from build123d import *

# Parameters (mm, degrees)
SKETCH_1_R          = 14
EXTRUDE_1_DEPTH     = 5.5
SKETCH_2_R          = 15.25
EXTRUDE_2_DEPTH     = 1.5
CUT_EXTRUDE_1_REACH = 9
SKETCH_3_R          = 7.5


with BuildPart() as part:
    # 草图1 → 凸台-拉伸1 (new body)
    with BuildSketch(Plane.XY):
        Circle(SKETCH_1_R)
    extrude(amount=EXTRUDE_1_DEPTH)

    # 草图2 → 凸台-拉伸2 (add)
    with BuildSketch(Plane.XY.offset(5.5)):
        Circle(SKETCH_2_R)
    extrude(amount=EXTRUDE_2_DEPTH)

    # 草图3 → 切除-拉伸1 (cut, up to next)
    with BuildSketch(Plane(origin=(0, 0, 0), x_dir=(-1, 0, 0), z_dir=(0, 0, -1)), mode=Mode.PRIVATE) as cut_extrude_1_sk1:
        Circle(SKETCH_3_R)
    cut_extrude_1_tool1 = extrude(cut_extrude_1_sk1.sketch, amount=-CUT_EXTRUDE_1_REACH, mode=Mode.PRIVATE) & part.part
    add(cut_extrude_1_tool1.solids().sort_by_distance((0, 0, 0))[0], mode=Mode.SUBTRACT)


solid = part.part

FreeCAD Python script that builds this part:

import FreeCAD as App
import Part
import Sketcher
Q = App.Units.Quantity

doc = App.newDocument("Part")
body = doc.addObject("PartDesign::Body", "Body")

sketch1 = body.newObject("Sketcher::SketchObject", "Sketch")
sketch1.AttachmentSupport = (doc.getObject("XY_Plane"), [""])
sketch1.MapMode = "FlatFace"
sketch1.addGeometry(Part.Circle(App.Vector(0, 0, 0), App.Vector(0, 0, 1), 14), False)
sketch1.addConstraint([
    Sketcher.Constraint("Coincident", 0, 3, -1, 1),
    Sketcher.Constraint("Diameter", 0, Q("28 mm")),
])
pad1 = body.newObject("PartDesign::Pad", "Pad")
pad1.Profile = sketch1
pad1.Length = 5.5

sketch2 = body.newObject("Sketcher::SketchObject", "Sketch001")
sketch2.AttachmentSupport = (doc.getObject("XY_Plane"), [""])
sketch2.MapMode = "FlatFace"
sketch2.AttachmentOffset = App.Placement(App.Vector(0, 0, 5.5), App.Rotation())
sketch2.addGeometry(Part.Circle(App.Vector(0, 0, 0), App.Vector(0, 0, 1), 15.25), False)
sketch2.addConstraint([
    Sketcher.Constraint("Coincident", 0, 3, -1, 1),
    Sketcher.Constraint("Diameter", 0, Q("30.5 mm")),
])
pad2 = body.newObject("PartDesign::Pad", "Pad001")
pad2.Profile = sketch2
pad2.Length = 1.5

sketch3 = body.newObject("Sketcher::SketchObject", "Sketch002")
sketch3.AttachmentSupport = (doc.getObject("XY_Plane"), [""])
sketch3.MapMode = "FlatFace"
sketch3.addGeometry(Part.Circle(App.Vector(0, 0, 0), App.Vector(0, 0, 1), 7.5), False)
sketch3.addConstraint([
    Sketcher.Constraint("Coincident", 0, 3, -1, 1),
    Sketcher.Constraint("Diameter", 0, Q("15 mm")),
])
pocket1 = body.newObject("PartDesign::Pocket", "Pocket")
pocket1.Profile = sketch3
pocket1.Type = "UpToFirst"
pocket1.Reversed = True

doc.recompute()
